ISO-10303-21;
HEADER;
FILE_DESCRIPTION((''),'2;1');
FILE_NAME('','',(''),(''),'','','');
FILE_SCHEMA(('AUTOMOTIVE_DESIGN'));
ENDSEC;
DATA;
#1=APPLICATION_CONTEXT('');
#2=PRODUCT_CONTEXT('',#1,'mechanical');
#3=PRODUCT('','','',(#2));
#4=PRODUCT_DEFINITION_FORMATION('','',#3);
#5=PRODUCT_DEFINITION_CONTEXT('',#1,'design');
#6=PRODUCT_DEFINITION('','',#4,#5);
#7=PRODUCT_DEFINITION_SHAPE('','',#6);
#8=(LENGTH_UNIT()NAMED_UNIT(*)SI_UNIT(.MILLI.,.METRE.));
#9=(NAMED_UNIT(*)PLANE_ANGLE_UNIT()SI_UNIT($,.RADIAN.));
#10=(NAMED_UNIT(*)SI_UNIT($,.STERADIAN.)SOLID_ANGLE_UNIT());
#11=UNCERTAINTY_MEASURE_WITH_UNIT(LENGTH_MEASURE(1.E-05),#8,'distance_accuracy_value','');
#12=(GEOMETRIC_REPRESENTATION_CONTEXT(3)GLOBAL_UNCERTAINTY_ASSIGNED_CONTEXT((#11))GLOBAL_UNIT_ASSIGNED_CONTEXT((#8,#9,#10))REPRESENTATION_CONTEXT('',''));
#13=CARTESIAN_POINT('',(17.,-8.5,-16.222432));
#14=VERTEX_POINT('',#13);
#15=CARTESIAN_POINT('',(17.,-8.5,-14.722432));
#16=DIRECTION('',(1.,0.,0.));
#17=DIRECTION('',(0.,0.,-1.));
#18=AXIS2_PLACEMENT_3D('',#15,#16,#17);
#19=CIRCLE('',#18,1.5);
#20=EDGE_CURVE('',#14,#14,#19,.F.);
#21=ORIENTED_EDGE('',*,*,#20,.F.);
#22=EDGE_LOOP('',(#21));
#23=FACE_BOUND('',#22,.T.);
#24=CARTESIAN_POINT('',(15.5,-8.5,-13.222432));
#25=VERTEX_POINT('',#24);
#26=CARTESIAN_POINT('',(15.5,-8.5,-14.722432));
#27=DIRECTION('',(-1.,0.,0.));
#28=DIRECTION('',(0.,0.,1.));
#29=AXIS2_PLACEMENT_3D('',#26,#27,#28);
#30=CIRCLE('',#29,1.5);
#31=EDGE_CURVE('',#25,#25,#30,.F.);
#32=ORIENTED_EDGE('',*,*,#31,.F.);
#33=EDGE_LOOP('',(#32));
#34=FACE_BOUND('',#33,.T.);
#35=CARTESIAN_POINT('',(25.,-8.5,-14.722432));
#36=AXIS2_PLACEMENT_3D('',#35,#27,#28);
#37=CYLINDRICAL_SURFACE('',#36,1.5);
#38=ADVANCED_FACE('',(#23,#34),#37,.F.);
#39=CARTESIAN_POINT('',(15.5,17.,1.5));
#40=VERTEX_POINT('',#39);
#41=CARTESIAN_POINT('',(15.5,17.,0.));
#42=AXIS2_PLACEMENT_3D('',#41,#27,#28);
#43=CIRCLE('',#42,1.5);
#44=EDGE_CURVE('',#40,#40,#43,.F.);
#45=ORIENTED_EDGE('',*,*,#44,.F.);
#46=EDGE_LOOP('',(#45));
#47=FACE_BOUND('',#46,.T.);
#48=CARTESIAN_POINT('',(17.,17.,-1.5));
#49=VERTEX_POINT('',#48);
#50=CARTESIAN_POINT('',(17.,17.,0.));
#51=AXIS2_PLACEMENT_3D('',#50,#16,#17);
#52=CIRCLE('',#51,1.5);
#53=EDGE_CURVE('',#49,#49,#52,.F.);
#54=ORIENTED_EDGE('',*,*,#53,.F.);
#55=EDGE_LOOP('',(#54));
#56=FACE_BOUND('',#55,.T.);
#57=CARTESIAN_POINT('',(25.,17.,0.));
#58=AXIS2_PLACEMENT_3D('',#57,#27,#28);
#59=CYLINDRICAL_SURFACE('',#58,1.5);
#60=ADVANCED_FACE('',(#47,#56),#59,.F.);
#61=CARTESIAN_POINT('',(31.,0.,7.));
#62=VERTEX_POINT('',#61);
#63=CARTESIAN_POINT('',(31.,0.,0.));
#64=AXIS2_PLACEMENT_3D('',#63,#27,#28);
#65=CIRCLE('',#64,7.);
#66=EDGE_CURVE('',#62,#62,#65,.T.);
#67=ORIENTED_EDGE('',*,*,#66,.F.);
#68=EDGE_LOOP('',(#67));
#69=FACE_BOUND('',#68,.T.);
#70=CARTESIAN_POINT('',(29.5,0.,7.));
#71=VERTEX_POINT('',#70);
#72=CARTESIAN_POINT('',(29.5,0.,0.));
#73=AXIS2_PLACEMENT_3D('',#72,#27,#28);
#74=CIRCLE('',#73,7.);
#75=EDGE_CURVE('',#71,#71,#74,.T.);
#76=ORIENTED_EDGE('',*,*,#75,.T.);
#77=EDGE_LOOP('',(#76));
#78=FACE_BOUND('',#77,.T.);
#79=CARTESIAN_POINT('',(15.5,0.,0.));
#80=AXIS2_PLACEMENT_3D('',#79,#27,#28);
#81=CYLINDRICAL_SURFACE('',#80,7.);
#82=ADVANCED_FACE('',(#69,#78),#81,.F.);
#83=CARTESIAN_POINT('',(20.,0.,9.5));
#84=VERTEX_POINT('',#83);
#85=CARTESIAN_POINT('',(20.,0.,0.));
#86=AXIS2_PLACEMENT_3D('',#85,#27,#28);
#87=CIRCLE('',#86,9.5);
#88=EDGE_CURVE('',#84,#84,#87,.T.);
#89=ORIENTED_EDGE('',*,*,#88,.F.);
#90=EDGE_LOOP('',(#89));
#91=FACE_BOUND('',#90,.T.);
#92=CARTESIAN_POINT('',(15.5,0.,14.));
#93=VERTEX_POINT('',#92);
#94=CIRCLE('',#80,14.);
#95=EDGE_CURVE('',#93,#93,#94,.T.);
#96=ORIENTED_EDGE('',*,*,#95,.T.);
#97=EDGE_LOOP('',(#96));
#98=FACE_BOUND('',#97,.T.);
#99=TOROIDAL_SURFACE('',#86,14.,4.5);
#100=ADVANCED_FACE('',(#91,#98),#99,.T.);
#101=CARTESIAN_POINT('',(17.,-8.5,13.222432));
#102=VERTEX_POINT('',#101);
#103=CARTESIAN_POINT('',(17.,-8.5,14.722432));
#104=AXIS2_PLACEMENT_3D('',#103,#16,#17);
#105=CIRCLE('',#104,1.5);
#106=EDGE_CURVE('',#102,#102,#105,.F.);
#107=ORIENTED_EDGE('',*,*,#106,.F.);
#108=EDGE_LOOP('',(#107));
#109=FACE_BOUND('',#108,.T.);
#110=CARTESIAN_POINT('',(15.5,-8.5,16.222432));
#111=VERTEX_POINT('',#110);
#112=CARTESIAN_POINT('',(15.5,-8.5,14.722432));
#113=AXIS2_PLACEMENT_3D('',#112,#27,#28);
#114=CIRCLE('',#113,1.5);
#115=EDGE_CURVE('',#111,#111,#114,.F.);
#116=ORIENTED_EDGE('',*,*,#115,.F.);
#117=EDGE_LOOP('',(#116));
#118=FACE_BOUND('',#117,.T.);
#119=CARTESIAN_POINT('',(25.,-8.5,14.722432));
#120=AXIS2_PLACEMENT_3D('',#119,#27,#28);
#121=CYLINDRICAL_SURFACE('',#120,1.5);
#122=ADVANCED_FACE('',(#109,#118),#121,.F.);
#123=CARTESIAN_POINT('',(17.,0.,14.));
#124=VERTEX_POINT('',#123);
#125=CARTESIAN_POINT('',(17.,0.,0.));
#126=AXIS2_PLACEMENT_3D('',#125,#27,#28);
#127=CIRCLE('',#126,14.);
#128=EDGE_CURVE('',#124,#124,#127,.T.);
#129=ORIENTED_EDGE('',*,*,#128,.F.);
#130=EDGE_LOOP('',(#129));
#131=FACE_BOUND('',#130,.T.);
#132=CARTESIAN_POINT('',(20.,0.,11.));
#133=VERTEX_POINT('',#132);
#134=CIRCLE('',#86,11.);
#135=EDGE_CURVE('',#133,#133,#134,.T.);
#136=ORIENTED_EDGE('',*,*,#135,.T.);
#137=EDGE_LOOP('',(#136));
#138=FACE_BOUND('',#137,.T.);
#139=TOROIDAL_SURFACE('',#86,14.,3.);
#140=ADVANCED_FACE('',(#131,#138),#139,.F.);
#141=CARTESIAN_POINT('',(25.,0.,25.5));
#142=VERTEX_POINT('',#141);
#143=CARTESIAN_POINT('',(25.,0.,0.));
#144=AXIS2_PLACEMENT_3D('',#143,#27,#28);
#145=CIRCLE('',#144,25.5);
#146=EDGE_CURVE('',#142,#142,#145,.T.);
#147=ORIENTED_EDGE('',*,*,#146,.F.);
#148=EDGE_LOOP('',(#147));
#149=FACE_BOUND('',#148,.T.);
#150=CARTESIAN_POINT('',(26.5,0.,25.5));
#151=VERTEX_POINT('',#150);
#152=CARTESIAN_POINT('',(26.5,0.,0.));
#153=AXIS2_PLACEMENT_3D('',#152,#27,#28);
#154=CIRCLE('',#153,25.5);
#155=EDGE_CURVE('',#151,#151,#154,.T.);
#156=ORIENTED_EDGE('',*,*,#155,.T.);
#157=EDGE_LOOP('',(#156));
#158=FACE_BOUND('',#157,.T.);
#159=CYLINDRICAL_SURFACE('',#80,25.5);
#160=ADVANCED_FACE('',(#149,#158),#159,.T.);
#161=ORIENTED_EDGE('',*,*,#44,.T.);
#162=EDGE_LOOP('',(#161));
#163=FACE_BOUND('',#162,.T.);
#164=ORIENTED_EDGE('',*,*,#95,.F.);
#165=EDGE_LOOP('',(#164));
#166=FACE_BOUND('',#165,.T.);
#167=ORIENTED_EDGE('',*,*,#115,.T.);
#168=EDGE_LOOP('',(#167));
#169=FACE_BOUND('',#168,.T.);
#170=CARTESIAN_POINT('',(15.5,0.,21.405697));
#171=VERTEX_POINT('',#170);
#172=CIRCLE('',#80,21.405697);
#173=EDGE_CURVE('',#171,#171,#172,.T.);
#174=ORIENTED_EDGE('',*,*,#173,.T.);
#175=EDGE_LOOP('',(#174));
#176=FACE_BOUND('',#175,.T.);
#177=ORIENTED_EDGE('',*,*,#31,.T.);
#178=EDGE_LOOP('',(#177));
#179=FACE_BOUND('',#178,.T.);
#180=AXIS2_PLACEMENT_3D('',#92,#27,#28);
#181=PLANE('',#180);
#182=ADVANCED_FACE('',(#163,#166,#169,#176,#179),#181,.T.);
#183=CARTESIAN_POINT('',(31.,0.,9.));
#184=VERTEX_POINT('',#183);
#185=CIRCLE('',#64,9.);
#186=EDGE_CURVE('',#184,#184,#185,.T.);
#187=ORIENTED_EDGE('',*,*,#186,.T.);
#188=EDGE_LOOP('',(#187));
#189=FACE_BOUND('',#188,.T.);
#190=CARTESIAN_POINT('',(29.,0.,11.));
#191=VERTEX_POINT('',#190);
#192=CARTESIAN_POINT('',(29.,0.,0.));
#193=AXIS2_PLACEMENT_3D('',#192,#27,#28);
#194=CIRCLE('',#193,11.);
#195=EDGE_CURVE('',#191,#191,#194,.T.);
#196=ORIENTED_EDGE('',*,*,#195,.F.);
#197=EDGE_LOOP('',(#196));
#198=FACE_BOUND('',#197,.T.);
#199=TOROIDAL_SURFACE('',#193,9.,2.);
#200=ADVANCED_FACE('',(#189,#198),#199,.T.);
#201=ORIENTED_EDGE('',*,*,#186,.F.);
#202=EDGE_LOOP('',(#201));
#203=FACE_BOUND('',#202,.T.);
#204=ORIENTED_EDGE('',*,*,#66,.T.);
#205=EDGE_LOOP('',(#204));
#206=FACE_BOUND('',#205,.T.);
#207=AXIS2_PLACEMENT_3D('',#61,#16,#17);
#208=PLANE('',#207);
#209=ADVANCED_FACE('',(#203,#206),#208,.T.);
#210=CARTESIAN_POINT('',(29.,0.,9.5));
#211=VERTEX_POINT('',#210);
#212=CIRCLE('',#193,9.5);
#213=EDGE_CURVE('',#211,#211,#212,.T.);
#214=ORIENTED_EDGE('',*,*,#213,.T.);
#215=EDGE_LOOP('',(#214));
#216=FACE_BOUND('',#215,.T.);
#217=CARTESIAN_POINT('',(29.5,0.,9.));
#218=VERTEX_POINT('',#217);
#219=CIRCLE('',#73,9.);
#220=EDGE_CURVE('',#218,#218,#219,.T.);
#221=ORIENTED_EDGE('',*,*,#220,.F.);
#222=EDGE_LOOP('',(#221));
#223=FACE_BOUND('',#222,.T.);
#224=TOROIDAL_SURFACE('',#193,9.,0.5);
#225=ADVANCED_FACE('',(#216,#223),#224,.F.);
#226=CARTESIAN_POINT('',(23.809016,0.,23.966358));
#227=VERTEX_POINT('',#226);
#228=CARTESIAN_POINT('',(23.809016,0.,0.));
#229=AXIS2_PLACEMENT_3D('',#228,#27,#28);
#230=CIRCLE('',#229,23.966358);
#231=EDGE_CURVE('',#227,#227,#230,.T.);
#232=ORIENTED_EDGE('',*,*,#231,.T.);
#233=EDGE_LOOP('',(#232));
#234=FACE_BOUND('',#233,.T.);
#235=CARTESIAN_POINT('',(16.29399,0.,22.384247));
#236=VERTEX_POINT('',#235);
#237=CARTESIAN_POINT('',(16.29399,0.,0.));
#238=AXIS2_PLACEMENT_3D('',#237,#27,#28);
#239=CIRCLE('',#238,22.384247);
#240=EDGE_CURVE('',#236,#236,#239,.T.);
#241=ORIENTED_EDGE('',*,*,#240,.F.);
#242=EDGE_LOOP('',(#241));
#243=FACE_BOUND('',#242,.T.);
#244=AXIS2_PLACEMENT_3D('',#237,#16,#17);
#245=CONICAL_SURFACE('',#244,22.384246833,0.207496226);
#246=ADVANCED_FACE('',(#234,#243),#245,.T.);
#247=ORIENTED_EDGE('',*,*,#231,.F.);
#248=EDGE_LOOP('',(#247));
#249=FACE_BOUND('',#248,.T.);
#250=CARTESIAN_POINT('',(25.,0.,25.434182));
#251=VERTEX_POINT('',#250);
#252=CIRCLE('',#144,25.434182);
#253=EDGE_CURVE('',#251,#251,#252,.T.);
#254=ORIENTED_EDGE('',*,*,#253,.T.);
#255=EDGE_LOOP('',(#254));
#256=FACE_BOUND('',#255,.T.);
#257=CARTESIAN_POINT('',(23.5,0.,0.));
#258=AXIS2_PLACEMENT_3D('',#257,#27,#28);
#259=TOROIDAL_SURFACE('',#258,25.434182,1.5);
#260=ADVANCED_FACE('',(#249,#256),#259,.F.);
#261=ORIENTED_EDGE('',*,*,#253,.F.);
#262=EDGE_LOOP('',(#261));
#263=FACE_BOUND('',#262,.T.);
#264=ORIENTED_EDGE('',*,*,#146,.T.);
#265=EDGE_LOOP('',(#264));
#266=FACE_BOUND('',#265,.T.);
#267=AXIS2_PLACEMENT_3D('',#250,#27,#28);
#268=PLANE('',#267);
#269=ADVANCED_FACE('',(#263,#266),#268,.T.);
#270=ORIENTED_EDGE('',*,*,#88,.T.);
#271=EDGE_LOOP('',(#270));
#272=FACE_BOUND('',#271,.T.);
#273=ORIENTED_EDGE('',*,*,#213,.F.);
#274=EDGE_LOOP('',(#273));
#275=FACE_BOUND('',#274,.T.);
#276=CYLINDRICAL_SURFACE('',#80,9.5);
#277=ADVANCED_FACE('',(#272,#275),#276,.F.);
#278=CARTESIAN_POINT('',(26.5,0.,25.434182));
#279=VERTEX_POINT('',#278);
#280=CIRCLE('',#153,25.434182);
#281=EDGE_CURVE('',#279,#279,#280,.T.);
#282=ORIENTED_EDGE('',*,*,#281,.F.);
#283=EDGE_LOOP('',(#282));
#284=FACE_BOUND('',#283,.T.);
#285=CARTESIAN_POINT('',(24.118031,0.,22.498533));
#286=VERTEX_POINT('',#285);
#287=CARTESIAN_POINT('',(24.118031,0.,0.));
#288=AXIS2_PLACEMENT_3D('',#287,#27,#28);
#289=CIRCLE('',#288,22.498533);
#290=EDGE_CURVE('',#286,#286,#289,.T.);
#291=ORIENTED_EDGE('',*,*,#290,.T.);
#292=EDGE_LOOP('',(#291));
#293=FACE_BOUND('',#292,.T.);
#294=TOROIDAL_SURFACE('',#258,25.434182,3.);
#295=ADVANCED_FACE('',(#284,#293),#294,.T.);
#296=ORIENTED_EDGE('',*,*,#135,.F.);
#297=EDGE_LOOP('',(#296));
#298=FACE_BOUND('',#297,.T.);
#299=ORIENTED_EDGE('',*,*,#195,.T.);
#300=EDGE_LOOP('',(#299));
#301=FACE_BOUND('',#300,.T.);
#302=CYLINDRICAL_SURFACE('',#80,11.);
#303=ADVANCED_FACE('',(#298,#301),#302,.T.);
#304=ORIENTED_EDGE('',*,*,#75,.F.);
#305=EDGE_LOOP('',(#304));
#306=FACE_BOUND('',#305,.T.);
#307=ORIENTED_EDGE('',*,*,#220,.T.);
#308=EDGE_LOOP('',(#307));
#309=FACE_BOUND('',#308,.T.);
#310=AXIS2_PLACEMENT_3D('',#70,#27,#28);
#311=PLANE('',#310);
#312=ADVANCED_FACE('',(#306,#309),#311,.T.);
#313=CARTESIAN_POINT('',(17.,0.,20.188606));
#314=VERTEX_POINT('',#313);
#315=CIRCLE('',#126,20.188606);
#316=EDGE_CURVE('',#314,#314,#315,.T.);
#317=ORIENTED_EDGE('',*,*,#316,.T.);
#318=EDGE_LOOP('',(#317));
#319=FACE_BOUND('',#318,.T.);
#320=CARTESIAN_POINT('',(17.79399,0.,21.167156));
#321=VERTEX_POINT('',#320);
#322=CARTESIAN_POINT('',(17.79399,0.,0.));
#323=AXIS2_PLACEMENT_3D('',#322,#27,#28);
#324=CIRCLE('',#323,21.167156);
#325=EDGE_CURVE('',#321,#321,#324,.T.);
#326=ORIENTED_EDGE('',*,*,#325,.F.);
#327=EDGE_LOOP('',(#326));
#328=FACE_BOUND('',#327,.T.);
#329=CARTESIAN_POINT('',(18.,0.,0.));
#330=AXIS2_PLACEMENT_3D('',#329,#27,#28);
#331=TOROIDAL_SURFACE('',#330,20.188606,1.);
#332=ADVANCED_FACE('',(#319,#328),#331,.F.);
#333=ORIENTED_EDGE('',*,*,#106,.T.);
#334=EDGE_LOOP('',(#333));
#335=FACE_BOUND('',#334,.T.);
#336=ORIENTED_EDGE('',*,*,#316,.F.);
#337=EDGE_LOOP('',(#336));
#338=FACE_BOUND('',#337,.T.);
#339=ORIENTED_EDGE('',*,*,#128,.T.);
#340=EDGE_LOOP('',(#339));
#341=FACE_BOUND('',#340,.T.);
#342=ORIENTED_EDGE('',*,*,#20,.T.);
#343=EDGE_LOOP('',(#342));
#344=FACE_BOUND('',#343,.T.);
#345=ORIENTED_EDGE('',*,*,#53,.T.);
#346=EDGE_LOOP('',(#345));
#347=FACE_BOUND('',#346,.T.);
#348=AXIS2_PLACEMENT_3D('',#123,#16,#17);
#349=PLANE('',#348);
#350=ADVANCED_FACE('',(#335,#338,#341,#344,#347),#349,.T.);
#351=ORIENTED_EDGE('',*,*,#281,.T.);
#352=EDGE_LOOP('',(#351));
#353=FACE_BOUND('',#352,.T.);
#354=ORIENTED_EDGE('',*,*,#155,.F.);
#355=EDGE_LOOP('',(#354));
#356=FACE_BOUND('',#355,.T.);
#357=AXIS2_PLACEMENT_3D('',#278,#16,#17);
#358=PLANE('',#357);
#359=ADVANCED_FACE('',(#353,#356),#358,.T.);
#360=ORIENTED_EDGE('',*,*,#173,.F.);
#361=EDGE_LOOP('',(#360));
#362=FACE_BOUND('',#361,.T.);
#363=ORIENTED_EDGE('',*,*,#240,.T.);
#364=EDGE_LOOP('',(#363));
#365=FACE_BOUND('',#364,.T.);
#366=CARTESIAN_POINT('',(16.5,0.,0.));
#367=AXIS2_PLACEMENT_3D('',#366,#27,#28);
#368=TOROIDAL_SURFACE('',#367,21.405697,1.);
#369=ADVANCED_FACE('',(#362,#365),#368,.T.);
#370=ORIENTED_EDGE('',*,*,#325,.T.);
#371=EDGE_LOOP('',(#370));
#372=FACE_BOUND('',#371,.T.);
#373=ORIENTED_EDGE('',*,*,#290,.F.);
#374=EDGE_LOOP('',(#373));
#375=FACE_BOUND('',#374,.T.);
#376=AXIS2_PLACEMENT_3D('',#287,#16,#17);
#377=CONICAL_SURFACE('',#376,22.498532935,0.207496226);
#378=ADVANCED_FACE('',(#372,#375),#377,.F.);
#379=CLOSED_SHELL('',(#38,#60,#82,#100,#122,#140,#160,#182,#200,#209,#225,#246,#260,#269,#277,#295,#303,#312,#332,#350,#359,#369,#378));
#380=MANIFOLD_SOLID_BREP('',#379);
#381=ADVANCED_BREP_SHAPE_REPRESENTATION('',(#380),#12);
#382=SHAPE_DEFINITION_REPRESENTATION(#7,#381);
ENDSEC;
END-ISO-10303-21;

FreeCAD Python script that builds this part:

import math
import FreeCAD as App
import Part
import Sketcher
from FreeCAD import Vector

doc = App.newDocument("Part")
body = doc.addObject("PartDesign::Body", "Body")

sketch1 = doc.addObject("Sketcher::SketchObject", "Sketch")
body.addObject(sketch1)
sketch1.AttachmentSupport = (doc.XZ_Plane, [""])
sketch1.MapMode = "FlatFace"
sketch1.addGeometry(Part.LineSegment(Vector(20, 11, 0), Vector(29, 11, 0)), False)
sketch1.addGeometry(Part.ArcOfCircle(Part.Circle(Vector(29, 9, 0), Vector(0, 0, 1), 2), math.radians(0), math.radians(90)), False)
sketch1.addGeometry(Part.LineSegment(Vector(31, 9, 0), Vector(31, 7, 0)), False)
sketch1.addGeometry(Part.LineSegment(Vector(31, 7, 0), Vector(29.5, 7, 0)), False)
sketch1.addGeometry(Part.LineSegment(Vector(29.5, 7, 0), Vector(29.5, 9, 0)), False)
sketch1.addGeometry(Part.ArcOfCircle(Part.Circle(Vector(29, 9, 0), Vector(0, 0, 1), 0.5), math.radians(0), math.radians(90)), False)
sketch1.addGeometry(Part.LineSegment(Vector(29, 9.5, 0), Vector(20, 9.5, 0)), False)
sketch1.addGeometry(Part.ArcOfCircle(Part.Circle(Vector(20, 14, 0), Vector(0, 0, 1), 4.5), math.radians(-180), math.radians(-90)), False)
sketch1.addGeometry(Part.LineSegment(Vector(15.5, 14, 0), Vector(15.5, 21.41, 0)), False)
sketch1.addGeometry(Part.ArcOfCircle(Part.Circle(Vector(16.5, 21.41, 0), Vector(0, 0, 1), 1), math.radians(102), math.radians(180)), False)
sketch1.addGeometry(Part.LineSegment(Vector(16.29, 22.38, 0), Vector(23.81, 23.97, 0)), False)
sketch1.addGeometry(Part.ArcOfCircle(Part.Circle(Vector(23.5, 25.43, 0), Vector(0, 0, 1), 1.5), math.radians(-78), math.radians(0)), False)
sketch1.addGeometry(Part.LineSegment(Vector(25, 25.43, 0), Vector(25, 25.5, 0)), False)
sketch1.addGeometry(Part.LineSegment(Vector(25, 25.5, 0), Vector(26.5, 25.5, 0)), False)
sketch1.addGeometry(Part.LineSegment(Vector(26.5, 25.5, 0), Vector(26.5, 25.43, 0)), False)
sketch1.addGeometry(Part.ArcOfCircle(Part.Circle(Vector(23.5, 25.43, 0), Vector(0, 0, 1), 3), math.radians(-78), math.radians(0)), False)
sketch1.addGeometry(Part.LineSegment(Vector(24.12, 22.5, 0), Vector(17.79, 21.17, 0)), False)
sketch1.addGeometry(Part.ArcOfCircle(Part.Circle(Vector(18, 20.19, 0), Vector(0, 0, 1), 1), math.radians(102), math.radians(180)), False)
sketch1.addGeometry(Part.LineSegment(Vector(17, 20.19, 0), Vector(17, 14, 0)), False)
sketch1.addGeometry(Part.ArcOfCircle(Part.Circle(Vector(20, 14, 0), Vector(0, 0, 1), 3), math.radians(180), math.radians(270)), False)
sketch1.addConstraint(Sketcher.Constraint("Tangent", 0, 2, 1, 2))
sketch1.addConstraint(Sketcher.Constraint("Tangent", 1, 1, 2, 1))
sketch1.addConstraint(Sketcher.Constraint("Coincident", 2, 2, 3, 1))
sketch1.addConstraint(Sketcher.Constraint("Coincident", 3, 2, 4, 1))
sketch1.addConstraint(Sketcher.Constraint("Tangent", 4, 2, 5, 1))
sketch1.addConstraint(Sketcher.Constraint("Tangent", 5, 2, 6, 1))
sketch1.addConstraint(Sketcher.Constraint("Tangent", 6, 2, 7, 2))
sketch1.addConstraint(Sketcher.Constraint("Tangent", 7, 1, 8, 1))
sketch1.addConstraint(Sketcher.Constraint("Tangent", 8, 2, 9, 2))
sketch1.addConstraint(Sketcher.Constraint("Tangent", 9, 1, 10, 1))
sketch1.addConstraint(Sketcher.Constraint("Tangent", 10, 2, 11, 1))
sketch1.addConstraint(Sketcher.Constraint("Tangent", 11, 2, 12, 1))
sketch1.addConstraint(Sketcher.Constraint("Coincident", 12, 2, 13, 1))
sketch1.addConstraint(Sketcher.Constraint("Coincident", 13, 2, 14, 1))
sketch1.addConstraint(Sketcher.Constraint("Tangent", 14, 2, 15, 2))
sketch1.addConstraint(Sketcher.Constraint("Tangent", 15, 1, 16, 1))
sketch1.addConstraint(Sketcher.Constraint("Tangent", 16, 2, 17, 1))
sketch1.addConstraint(Sketcher.Constraint("Tangent", 17, 2, 18, 1))
sketch1.addConstraint(Sketcher.Constraint("Tangent", 18, 2, 19, 1))
sketch1.addConstraint(Sketcher.Constraint("Tangent", 19, 2, 0, 1))
sketch1.addConstraint(Sketcher.Constraint("Horizontal", 0))
sketch1.addConstraint(Sketcher.Constraint("Vertical", 2))
sketch1.addConstraint(Sketcher.Constraint("Horizontal", 3))
sketch1.addConstraint(Sketcher.Constraint("Vertical", 4))
sketch1.addConstraint(Sketcher.Constraint("Horizontal", 6))
sketch1.addConstraint(Sketcher.Constraint("Vertical", 8))
sketch1.addConstraint(Sketcher.Constraint("Vertical", 12))
sketch1.addConstraint(Sketcher.Constraint("Horizontal", 13))
sketch1.addConstraint(Sketcher.Constraint("Vertical", 14))
sketch1.addConstraint(Sketcher.Constraint("Vertical", 18))
sketch1.addConstraint(Sketcher.Constraint("Coincident", 5, 3, 1, 3))
sketch1.addConstraint(Sketcher.Constraint("Coincident", 15, 3, 11, 3))
sketch1.addConstraint(Sketcher.Constraint("Coincident", 19, 3, 7, 3))
sketch1.addConstraint(Sketcher.Constraint("Equal", 9, 17))
sketch1.addConstraint(Sketcher.Constraint("Equal", 15, 19))
sketch1.addConstraint(Sketcher.Constraint("Parallel", 10, 16))
sketch1.addConstraint(Sketcher.Constraint("Equal", 3, 13))
sketch1.addConstraint(Sketcher.Constraint("Radius", 1, 2.0))
sketch1.addConstraint(Sketcher.Constraint("Radius", 9, 1.0))
sketch1.addConstraint(Sketcher.Constraint("Radius", 15, 3.0))
sketch1.addConstraint(Sketcher.Constraint("Radius", 5, 0.5))
sketch1.addConstraint(Sketcher.Constraint("DistanceX", 0, 1, 0, 2, 9.0))
sketch1.addConstraint(Sketcher.Constraint("DistanceY", 2, 2, 2, 1, 2.0))
sketch1.addConstraint(Sketcher.Constraint("DistanceX", -1, 1, 1, 3, 29.0))
sketch1.addConstraint(Sketcher.Constraint("DistanceY", -1, 1, 1, 3, 9.0))
sketch1.addConstraint(Sketcher.Constraint("DistanceX", -1, 1, 11, 2, 25.0))
sketch1.addConstraint(Sketcher.Constraint("DistanceY", -1, 1, 12, 2, 25.5))
sketch1.addConstraint(Sketcher.Constraint("Distance", 10, 7.679759))
sketch1.addConstraint(Sketcher.Constraint("DistanceY", 8, 1, 8, 2, 7.405697))
revolution = doc.addObject("PartDesign::Revolution", "Revolution")
body.addObject(revolution)
revolution.Profile = sketch1
revolution.ReferenceAxis = (sketch1, ["H_Axis"])
revolution.Angle = 360

sketch2 = doc.addObject("Sketcher::SketchObject", "Sketch001")
body.addObject(sketch2)
sketch2.AttachmentSupport = (doc.YZ_Plane, [""])
sketch2.MapMode = "FlatFace"
sketch2.addGeometry(Part.Circle(Vector(17, 0, 0), Vector(0, 0, 1), 1.5), False)
sketch2.addGeometry(Part.Circle(Vector(-8.5, -14.7, 0), Vector(0, 0, 1), 1.5), False)
sketch2.addGeometry(Part.Circle(Vector(-8.5, 14.7, 0), Vector(0, 0, 1), 1.5), False)
sketch2.addConstraint(Sketcher.Constraint("Equal", 0, 1))
sketch2.addConstraint(Sketcher.Constraint("Equal", 1, 2))
sketch2.addConstraint(Sketcher.Constraint("Symmetric", 1, 3, 2, 3, -1))
sketch2.addConstraint(Sketcher.Constraint("PointOnObject", 0, 3, -1))
sketch2.addConstraint(Sketcher.Constraint("Diameter", 0, 3.0))
sketch2.addConstraint(Sketcher.Constraint("DistanceX", -1, 1, 0, 3, 17.0))
sketch2.addConstraint(Sketcher.Constraint("DistanceX", 1, 3, -1, 1, 8.5))
sketch2.addConstraint(Sketcher.Constraint("DistanceY", 1, 3, -1, 1, 14.722432))
pocket1 = doc.addObject("PartDesign::Pocket", "Pocket")
body.addObject(pocket1)
pocket1.Profile = sketch2
pocket1.Length = 25
pocket1.Reversed = True

doc.recompute()
